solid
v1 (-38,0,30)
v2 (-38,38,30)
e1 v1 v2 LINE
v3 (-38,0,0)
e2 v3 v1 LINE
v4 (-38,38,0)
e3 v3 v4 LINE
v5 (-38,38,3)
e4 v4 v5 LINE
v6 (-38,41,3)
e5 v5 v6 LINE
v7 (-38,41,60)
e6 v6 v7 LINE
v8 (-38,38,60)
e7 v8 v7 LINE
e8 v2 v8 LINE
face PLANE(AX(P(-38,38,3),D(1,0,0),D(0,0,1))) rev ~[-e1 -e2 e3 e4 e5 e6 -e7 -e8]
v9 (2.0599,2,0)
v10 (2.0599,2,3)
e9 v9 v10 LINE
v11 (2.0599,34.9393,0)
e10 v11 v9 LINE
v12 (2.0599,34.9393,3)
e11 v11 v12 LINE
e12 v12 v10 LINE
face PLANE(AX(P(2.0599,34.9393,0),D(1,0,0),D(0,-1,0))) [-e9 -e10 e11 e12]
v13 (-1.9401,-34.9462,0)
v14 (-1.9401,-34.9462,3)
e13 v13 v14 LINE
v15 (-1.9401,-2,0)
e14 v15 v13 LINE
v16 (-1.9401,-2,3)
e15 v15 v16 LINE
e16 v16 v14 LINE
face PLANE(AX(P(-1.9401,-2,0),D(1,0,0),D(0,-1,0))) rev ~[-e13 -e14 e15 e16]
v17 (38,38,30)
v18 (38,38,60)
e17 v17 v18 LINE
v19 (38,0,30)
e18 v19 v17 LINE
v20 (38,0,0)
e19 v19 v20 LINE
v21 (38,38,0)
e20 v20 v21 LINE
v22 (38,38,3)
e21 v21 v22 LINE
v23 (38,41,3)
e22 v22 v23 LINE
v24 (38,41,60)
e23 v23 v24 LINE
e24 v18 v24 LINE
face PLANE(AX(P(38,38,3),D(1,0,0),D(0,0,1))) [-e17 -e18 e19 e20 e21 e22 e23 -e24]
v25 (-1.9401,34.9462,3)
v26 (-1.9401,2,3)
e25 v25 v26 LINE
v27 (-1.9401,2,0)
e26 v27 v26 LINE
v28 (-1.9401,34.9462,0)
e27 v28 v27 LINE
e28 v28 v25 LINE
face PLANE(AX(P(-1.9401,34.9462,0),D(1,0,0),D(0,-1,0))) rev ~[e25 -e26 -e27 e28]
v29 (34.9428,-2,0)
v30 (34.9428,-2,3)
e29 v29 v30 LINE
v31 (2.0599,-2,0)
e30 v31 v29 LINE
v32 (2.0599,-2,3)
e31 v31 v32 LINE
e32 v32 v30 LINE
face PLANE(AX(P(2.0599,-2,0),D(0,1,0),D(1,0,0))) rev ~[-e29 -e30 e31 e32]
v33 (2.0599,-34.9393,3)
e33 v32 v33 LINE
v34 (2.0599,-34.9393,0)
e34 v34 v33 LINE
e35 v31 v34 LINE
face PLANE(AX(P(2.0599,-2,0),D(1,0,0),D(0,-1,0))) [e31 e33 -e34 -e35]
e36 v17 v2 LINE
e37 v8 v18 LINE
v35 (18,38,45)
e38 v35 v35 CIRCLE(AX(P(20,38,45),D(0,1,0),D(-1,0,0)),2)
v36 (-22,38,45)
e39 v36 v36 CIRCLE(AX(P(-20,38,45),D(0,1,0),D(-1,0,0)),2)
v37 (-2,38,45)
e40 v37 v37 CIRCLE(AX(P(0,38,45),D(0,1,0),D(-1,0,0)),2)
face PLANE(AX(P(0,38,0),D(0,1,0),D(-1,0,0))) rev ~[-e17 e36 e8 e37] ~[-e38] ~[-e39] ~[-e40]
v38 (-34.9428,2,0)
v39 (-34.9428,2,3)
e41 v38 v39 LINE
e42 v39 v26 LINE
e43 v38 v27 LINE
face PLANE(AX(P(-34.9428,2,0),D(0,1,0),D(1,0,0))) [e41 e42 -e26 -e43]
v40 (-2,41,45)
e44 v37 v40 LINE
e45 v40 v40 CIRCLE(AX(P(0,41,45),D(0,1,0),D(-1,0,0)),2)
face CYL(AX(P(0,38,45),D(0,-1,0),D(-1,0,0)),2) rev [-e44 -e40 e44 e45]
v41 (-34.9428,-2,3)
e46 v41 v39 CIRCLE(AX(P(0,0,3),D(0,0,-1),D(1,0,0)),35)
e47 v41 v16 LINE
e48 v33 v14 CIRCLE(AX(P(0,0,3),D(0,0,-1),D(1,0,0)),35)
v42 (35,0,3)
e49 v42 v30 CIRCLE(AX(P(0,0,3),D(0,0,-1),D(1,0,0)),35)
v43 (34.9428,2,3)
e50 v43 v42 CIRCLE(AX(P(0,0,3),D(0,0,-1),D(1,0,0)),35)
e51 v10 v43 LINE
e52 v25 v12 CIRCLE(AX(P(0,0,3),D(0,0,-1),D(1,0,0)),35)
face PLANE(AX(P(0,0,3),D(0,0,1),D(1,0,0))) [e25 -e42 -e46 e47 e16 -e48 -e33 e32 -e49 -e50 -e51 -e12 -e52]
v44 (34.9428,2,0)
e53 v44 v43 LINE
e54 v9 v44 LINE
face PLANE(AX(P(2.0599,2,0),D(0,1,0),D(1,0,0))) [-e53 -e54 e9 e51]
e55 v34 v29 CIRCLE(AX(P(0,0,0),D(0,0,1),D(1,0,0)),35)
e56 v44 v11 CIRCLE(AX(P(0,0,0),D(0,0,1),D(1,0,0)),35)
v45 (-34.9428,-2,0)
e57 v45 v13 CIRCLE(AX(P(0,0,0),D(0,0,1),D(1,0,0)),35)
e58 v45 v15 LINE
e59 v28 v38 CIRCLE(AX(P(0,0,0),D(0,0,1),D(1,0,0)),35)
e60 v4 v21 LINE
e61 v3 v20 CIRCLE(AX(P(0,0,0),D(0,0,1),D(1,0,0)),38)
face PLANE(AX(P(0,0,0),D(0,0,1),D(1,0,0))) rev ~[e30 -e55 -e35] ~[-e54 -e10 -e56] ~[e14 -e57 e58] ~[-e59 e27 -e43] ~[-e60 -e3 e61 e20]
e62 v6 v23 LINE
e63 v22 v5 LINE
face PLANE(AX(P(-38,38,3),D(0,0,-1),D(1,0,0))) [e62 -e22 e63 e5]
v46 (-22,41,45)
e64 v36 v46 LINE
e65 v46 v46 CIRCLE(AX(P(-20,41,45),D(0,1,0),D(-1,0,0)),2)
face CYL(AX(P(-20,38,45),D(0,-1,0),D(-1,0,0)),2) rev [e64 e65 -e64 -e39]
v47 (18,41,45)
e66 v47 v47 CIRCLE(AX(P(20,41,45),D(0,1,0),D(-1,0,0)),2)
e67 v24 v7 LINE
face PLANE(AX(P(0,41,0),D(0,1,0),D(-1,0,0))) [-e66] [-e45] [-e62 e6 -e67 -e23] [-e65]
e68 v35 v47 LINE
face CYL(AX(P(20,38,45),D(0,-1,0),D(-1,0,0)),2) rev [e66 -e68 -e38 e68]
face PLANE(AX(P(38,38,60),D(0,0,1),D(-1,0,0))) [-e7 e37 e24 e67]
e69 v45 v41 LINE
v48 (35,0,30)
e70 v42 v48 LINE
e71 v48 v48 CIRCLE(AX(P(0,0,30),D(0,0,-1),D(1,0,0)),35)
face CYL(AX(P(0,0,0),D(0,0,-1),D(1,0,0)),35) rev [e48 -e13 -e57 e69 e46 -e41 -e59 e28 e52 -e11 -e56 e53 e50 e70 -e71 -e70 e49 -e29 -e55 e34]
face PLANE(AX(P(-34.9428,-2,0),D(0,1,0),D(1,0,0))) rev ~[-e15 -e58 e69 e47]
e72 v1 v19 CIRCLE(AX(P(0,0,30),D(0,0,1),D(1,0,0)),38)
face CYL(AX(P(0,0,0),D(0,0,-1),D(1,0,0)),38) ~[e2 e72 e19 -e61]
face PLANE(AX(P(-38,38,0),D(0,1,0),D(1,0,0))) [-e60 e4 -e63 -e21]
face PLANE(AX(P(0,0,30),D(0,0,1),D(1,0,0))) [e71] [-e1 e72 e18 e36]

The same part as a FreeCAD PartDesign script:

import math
import FreeCAD as App
import Part
import Sketcher
from FreeCAD import Vector
Q = App.Units.Quantity

doc = App.newDocument("Part")
body = doc.addObject("PartDesign::Body", "Body")
body.AllowCompound = True

# Sketch on XY plane
sketch1 = body.newObject("Sketcher::SketchObject", "Sketch")
sketch1.AttachmentSupport = (doc.getObject("XY_Plane"), [""])
sketch1.MapMode = "FlatFace"
sketch1.addGeometry([
    Part.ArcOfCircle(Part.Circle(Vector(0, 0, 0), Vector(0, 0, 1), 38), math.radians(180), math.radians(360)),  # 0
    Part.LineSegment(Vector(38, 0, 0), Vector(38, 38, 0)),  # 1
    Part.LineSegment(Vector(38, 38, 0), Vector(-38, 38, 0)),  # 2
    Part.LineSegment(Vector(-38, 38, 0), Vector(-38, 0, 0)),  # 3
    Part.LineSegment(Vector(2, -2, 0), Vector(35, -2, 0)),  # 4
    Part.ArcOfCircle(Part.Circle(Vector(0, 0, 0), Vector(0, 0, 1), 35), math.radians(-87), math.radians(-3)),  # 5
    Part.LineSegment(Vector(2, -35, 0), Vector(2, -2, 0)),  # 6
    Part.LineSegment(Vector(-2, -2, 0), Vector(-2, -35, 0)),  # 7
    Part.ArcOfCircle(Part.Circle(Vector(0, 0, 0), Vector(0, 0, 1), 35), math.radians(-177), math.radians(-93)),  # 8
    Part.LineSegment(Vector(-35, -2, 0), Vector(-2, -2, 0)),  # 9
    Part.LineSegment(Vector(-2, 2, 0), Vector(-35, 2, 0)),  # 10
    Part.ArcOfCircle(Part.Circle(Vector(0, 0, 0), Vector(0, 0, 1), 35), math.radians(93), math.radians(177)),  # 11
    Part.LineSegment(Vector(-2, 35, 0), Vector(-2, 2, 0)),  # 12
    Part.LineSegment(Vector(2, 2, 0), Vector(2, 35, 0)),  # 13
    Part.ArcOfCircle(Part.Circle(Vector(0, 0, 0), Vector(0, 0, 1), 35), math.radians(3), math.radians(87)),  # 14
    Part.LineSegment(Vector(35, 2, 0), Vector(2, 2, 0)),  # 15
], False)
sketch1.addConstraint([
    Sketcher.Constraint("Tangent", 0, 2, 1, 1),
    Sketcher.Constraint("Coincident", 1, 2, 2, 1),
    Sketcher.Constraint("Coincident", 2, 2, 3, 1),
    Sketcher.Constraint("Tangent", 3, 2, 0, 1),
    Sketcher.Constraint("Coincident", 4, 2, 5, 2),
    Sketcher.Constraint("Coincident", 5, 1, 6, 1),
    Sketcher.Constraint("Coincident", 6, 2, 4, 1),
    Sketcher.Constraint("Coincident", 7, 2, 8, 2),
    Sketcher.Constraint("Coincident", 8, 1, 9, 1),
    Sketcher.Constraint("Coincident", 9, 2, 7, 1),
    Sketcher.Constraint("Coincident", 10, 2, 11, 2),
    Sketcher.Constraint("Coincident", 11, 1, 12, 1),
    Sketcher.Constraint("Coincident", 12, 2, 10, 1),
    Sketcher.Constraint("Coincident", 13, 2, 14, 2),
    Sketcher.Constraint("Coincident", 14, 1, 15, 1),
    Sketcher.Constraint("Coincident", 15, 2, 13, 1),
    Sketcher.Constraint("Vertical", 1),
    Sketcher.Constraint("Horizontal", 2),
    Sketcher.Constraint("Vertical", 3),
    Sketcher.Constraint("Horizontal", 4),
    Sketcher.Constraint("Vertical", 6),
    Sketcher.Constraint("Vertical", 7),
    Sketcher.Constraint("Horizontal", 9),
    Sketcher.Constraint("Horizontal", 10),
    Sketcher.Constraint("Vertical", 12),
    Sketcher.Constraint("Vertical", 13),
    Sketcher.Constraint("Horizontal", 15),
    Sketcher.Constraint("Coincident", 0, 3, -1, 1),
    Sketcher.Constraint("Coincident", 5, 3, -1, 1),
    Sketcher.Constraint("Coincident", 8, 3, -1, 1),
    Sketcher.Constraint("Coincident", 11, 3, -1, 1),
    Sketcher.Constraint("Coincident", 14, 3, -1, 1),
    Sketcher.Constraint("Equal", 5, 8),
    Sketcher.Constraint("Equal", 8, 11),
    Sketcher.Constraint("Equal", 11, 14),
    Sketcher.Constraint("Symmetric", 9, 2, 12, 2, -1),
    Sketcher.Constraint("Symmetric", 6, 2, 15, 2, -1),
    Sketcher.Constraint("Horizontal", 6, 2, 8, 1),
    Sketcher.Constraint("Radius", 0, Q("38 mm")),
    Sketcher.Constraint("Radius", 5, Q("35 mm")),
    Sketcher.Constraint("DistanceY", 1, 1, 1, 2, Q("38 mm")),
    Sketcher.Constraint("DistanceY", 4, 2, -1, 1, Q("2 mm")),
    Sketcher.Constraint("DistanceX", 7, 2, 5, 1, Q("4 mm")),
    Sketcher.Constraint("DistanceX", 4, 1, 4, 2, Q("32.883 mm")),
])
pad1 = body.newObject("PartDesign::Pad", "Pad")
pad1.Profile = sketch1
pad1.Length = 3

# Sketch on XZ plane
sketch2 = body.newObject("Sketcher::SketchObject", "Sketch001")
sketch2.AttachmentSupport = (doc.getObject("XZ_Plane"), [""])
sketch2.MapMode = "FlatFace"
sketch2.AttachmentOffset = App.Placement(Vector(0, 0, -38), App.Rotation())
sketch2.addGeometry([
    Part.LineSegment(Vector(38, 60, 0), Vector(38, 3, 0)),  # 0
    Part.LineSegment(Vector(38, 3, 0), Vector(-38, 3, 0)),  # 1
    Part.LineSegment(Vector(-38, 3, 0), Vector(-38, 60, 0)),  # 2
    Part.LineSegment(Vector(-38, 60, 0), Vector(38, 60, 0)),  # 3
    Part.Circle(Vector(20, 45, 0), Vector(0, 0, 1), 2),  # 4
    Part.Circle(Vector(0, 45, 0), Vector(0, 0, 1), 2),  # 5
    Part.Circle(Vector(-20, 45, 0), Vector(0, 0, 1), 2),  # 6
], False)
sketch2.addConstraint([
    Sketcher.Constraint("Coincident", 0, 2, 1, 1),
    Sketcher.Constraint("Coincident", 1, 2, 2, 1),
    Sketcher.Constraint("Coincident", 2, 2, 3, 1),
    Sketcher.Constraint("Coincident", 3, 2, 0, 1),
    Sketcher.Constraint("Vertical", 0),
    Sketcher.Constraint("Horizontal", 1),
    Sketcher.Constraint("Vertical", 2),
    Sketcher.Constraint("Horizontal", 3),
    Sketcher.Constraint("Equal", 4, 5),
    Sketcher.Constraint("Equal", 5, 6),
    Sketcher.Constraint("Symmetric", 4, 3, 6, 3, -2),
    Sketcher.Constraint("PointOnObject", 5, 3, -2),
    Sketcher.Constraint("Horizontal", 4, 3, 5, 3),
    Sketcher.Constraint("Diameter", 4, Q("4 mm")),
    Sketcher.Constraint("DistanceX", -1, 1, 0, 2, Q("38 mm")),
    Sketcher.Constraint("DistanceX", 1, 2, -1, 1, Q("38 mm")),
    Sketcher.Constraint("DistanceY", -1, 1, 2, 2, Q("60 mm")),
    Sketcher.Constraint("DistanceY", 0, 2, 0, 1, Q("57 mm")),
    Sketcher.Constraint("DistanceX", -1, 1, 4, 3, Q("20 mm")),
    Sketcher.Constraint("DistanceY", -1, 1, 4, 3, Q("45 mm")),
])
pad2 = body.newObject("PartDesign::Pad", "Pad001")
pad2.Profile = sketch2
pad2.Length = 3
pad2.Reversed = True

# Sketch on XY plane
sketch3 = body.newObject("Sketcher::SketchObject", "Sketch002")
sketch3.AttachmentSupport = (doc.getObject("XY_Plane"), [""])
sketch3.MapMode = "FlatFace"
sketch3.addGeometry([
    Part.ArcOfCircle(Part.Circle(Vector(0, 0, 0), Vector(0, 0, 1), 38), math.radians(180), math.radians(360)),  # 0
    Part.LineSegment(Vector(38, 0, 0), Vector(38, 38, 0)),  # 1
    Part.LineSegment(Vector(38, 38, 0), Vector(-38, 38, 0)),  # 2
    Part.LineSegment(Vector(-38, 38, 0), Vector(-38, 0, 0)),  # 3
    Part.Circle(Vector(0, 0, 0), Vector(0, 0, 1), 35),  # 4
], False)
sketch3.addConstraint([
    Sketcher.Constraint("Tangent", 0, 2, 1, 1),
    Sketcher.Constraint("Coincident", 1, 2, 2, 1),
    Sketcher.Constraint("Coincident", 2, 2, 3, 1),
    Sketcher.Constraint("Tangent", 3, 2, 0, 1),
    Sketcher.Constraint("Vertical", 1),
    Sketcher.Constraint("Horizontal", 2),
    Sketcher.Constraint("Vertical", 3),
    Sketcher.Constraint("Coincident", 0, 3, -1, 1),
    Sketcher.Constraint("Coincident", 4, 3, -1, 1),
    Sketcher.Constraint("Diameter", 4, Q("70 mm")),
    Sketcher.Constraint("Radius", 0, Q("38 mm")),
    Sketcher.Constraint("DistanceY", 1, 1, 1, 2, Q("38 mm")),
])
pad3 = body.newObject("PartDesign::Pad", "Pad002")
pad3.Profile = sketch3
pad3.Length = 30

doc.recompute()
